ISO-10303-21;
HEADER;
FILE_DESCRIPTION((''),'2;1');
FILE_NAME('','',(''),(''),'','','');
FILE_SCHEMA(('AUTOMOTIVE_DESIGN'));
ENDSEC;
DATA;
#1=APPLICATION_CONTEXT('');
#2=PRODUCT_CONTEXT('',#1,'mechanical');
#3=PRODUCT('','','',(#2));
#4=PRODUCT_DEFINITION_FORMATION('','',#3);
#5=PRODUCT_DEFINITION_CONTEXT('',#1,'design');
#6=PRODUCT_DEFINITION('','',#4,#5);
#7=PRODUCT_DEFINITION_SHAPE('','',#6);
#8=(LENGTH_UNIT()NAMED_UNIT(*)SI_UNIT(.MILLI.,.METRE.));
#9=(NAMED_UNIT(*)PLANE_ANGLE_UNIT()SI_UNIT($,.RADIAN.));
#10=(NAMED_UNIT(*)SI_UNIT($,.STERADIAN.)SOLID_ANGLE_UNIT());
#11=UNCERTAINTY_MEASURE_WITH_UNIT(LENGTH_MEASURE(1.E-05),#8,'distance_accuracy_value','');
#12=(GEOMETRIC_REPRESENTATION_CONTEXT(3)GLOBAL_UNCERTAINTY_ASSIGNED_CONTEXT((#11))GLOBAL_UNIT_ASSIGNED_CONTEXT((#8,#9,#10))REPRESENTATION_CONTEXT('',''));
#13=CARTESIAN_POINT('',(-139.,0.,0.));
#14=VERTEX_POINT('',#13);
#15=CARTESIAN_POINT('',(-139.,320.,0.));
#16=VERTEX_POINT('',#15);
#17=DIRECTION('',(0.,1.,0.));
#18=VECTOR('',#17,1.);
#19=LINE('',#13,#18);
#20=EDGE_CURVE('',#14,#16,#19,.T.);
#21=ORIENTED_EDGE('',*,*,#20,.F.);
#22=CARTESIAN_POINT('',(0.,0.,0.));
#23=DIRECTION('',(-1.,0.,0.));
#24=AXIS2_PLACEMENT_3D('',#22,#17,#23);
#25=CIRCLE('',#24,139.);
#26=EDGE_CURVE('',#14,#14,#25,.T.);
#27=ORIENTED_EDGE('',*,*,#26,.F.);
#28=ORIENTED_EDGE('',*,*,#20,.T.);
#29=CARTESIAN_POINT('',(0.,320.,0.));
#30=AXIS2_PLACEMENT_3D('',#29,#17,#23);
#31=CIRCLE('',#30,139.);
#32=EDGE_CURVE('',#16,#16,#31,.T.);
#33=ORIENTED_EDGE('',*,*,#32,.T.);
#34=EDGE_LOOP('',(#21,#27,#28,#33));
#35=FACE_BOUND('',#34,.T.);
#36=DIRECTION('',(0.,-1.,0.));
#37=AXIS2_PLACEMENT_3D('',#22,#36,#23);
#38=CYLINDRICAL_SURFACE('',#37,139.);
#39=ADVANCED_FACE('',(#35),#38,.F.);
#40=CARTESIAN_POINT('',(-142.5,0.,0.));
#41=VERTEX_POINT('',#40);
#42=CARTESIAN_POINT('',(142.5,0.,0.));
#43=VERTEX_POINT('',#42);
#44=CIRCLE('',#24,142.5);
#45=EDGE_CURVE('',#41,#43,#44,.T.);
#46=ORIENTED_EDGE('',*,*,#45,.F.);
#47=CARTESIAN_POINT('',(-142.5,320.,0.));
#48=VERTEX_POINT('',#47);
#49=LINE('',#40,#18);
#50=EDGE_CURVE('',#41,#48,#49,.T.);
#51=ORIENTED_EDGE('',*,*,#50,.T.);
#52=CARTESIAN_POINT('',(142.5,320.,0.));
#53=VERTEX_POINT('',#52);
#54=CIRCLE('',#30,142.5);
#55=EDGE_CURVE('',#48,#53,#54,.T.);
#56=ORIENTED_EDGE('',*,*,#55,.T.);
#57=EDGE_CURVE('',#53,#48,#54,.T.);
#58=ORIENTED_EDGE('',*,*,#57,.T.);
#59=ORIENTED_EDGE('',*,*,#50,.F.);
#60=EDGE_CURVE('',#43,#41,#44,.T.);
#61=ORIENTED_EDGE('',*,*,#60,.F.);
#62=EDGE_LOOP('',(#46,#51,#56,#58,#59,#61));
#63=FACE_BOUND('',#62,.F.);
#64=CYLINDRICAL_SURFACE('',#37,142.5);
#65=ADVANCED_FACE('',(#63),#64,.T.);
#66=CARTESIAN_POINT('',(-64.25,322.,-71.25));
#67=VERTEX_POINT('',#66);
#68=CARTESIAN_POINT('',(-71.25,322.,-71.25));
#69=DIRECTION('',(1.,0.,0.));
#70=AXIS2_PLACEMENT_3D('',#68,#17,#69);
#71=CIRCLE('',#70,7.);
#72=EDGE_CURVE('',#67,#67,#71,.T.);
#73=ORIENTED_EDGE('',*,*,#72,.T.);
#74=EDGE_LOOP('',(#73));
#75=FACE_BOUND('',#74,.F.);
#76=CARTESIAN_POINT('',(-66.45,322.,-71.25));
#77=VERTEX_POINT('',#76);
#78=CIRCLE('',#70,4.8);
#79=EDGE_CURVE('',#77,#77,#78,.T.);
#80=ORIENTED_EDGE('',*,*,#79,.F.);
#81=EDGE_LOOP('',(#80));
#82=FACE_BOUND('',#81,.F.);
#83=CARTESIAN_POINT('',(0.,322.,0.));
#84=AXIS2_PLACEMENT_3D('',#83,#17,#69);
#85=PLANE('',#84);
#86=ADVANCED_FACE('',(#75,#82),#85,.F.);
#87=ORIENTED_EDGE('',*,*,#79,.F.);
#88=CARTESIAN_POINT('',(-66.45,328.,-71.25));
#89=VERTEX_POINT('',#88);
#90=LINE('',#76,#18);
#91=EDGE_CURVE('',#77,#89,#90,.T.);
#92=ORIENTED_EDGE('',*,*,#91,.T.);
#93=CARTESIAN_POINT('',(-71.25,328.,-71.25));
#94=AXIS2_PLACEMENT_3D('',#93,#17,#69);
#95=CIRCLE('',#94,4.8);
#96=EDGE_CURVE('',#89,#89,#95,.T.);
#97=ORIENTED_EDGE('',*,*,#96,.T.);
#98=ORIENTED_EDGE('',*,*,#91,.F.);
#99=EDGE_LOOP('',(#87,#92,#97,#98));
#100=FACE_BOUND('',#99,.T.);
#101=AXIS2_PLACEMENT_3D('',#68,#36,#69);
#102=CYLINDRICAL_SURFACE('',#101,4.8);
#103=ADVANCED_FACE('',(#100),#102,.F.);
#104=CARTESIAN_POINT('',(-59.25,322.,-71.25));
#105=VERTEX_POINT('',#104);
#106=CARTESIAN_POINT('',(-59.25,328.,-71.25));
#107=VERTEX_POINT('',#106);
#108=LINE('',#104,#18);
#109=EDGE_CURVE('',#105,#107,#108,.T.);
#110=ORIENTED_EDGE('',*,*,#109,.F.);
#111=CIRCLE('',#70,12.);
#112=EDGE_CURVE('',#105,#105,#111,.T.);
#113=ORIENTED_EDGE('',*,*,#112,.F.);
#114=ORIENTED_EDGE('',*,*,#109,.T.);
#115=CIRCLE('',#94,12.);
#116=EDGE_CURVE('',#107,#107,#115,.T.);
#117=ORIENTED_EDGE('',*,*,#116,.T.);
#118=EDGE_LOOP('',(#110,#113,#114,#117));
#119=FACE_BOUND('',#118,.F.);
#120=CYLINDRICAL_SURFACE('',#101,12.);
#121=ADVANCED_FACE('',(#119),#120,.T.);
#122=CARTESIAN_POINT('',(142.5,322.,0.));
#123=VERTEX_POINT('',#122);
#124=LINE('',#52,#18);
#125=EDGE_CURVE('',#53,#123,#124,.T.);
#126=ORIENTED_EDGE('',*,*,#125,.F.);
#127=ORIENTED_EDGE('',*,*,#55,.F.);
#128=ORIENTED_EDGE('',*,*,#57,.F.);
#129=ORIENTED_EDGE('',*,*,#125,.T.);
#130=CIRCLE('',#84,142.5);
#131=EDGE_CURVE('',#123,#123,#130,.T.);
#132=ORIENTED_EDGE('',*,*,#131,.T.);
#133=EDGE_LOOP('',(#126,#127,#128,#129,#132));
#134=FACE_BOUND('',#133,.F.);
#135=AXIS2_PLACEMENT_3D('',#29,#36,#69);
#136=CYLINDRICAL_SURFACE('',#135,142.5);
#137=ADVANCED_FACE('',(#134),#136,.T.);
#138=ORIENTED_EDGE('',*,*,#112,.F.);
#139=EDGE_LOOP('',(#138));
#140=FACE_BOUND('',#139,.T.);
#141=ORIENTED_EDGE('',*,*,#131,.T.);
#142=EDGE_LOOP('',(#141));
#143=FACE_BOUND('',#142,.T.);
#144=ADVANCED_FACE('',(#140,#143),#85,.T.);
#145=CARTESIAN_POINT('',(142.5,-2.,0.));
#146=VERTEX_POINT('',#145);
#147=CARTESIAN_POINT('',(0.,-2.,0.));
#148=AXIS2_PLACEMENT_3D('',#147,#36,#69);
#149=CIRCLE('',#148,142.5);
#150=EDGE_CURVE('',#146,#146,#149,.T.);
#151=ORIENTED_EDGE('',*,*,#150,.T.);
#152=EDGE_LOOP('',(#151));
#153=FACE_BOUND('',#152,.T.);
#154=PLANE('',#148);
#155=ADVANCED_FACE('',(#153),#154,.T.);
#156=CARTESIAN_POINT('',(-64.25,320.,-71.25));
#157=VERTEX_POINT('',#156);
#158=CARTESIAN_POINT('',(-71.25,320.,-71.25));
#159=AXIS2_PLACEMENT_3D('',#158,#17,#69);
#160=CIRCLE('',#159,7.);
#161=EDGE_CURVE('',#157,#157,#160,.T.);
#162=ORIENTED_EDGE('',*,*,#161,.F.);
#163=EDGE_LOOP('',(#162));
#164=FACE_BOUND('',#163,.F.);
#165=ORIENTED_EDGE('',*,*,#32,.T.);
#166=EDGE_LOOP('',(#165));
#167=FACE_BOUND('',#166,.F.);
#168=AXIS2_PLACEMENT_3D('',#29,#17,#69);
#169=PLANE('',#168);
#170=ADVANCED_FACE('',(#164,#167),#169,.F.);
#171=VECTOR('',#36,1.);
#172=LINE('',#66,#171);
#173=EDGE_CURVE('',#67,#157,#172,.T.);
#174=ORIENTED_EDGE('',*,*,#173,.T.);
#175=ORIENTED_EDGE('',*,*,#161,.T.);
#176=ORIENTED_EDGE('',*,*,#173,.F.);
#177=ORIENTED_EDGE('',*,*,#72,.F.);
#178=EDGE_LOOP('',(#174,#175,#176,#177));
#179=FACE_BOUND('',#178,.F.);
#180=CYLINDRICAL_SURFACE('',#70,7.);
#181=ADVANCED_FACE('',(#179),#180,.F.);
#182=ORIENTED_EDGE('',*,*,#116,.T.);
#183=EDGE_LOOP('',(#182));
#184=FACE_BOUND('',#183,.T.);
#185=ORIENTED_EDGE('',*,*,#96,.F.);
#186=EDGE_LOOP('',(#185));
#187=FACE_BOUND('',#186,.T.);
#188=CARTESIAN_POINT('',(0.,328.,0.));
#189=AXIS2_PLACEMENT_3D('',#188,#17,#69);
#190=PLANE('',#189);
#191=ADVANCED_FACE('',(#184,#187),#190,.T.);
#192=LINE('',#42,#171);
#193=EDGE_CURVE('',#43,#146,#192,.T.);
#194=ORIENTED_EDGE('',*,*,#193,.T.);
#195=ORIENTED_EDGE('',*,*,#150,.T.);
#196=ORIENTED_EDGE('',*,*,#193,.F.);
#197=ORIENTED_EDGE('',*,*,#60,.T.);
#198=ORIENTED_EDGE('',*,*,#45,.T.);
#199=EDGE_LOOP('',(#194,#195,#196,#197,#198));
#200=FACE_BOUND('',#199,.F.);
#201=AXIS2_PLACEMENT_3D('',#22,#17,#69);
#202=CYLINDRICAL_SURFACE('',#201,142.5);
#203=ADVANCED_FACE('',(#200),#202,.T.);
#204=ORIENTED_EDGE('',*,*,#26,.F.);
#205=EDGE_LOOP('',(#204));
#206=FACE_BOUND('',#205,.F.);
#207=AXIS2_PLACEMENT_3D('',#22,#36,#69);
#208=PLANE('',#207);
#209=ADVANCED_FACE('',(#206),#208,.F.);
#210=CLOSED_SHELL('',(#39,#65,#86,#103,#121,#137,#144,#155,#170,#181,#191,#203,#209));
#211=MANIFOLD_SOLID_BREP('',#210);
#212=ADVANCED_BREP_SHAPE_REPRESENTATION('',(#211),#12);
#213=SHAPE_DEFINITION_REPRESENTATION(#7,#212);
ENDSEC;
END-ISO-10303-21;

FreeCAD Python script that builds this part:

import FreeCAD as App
import Part
import Sketcher

V = App.Vector

doc = App.newDocument("Part")
body = doc.addObject("PartDesign::Body", "Body")

# Sketch on XZ plane
sketch1 = doc.addObject("Sketcher::SketchObject", "Sketch")
body.addObject(sketch1)
sketch1.AttachmentSupport = (doc.XZ_Plane, [""])
sketch1.MapMode = "FlatFace"
sketch1.addGeometry([
    Part.Circle(V(0, 0, 0), V(0, 0, 1), 142.5),
    Part.Circle(V(0, 0, 0), V(0, 0, 1), 139),
], False)
sketch1.addConstraint([
    Sketcher.Constraint("Coincident", 0, 3, -1, 1),
    Sketcher.Constraint("Coincident", 1, 3, -1, 1),
    Sketcher.Constraint("Diameter", 0, 285.0),
    Sketcher.Constraint("Diameter", 1, 278.0),
])
pad1 = doc.addObject("PartDesign::Pad", "Pad")
body.addObject(pad1)
pad1.Profile = sketch1
pad1.Length = 320
pad1.Reversed = True

# Sketch on XZ plane
sketch2 = doc.addObject("Sketcher::SketchObject", "Sketch001")
body.addObject(sketch2)
sketch2.AttachmentSupport = (doc.XZ_Plane, [""])
sketch2.MapMode = "FlatFace"
sketch2.addGeometry(Part.Circle(V(0, 0, 0), V(0, 0, 1), 142.5), False)
sketch2.addConstraint([
    Sketcher.Constraint("Coincident", 0, 3, -1, 1),
    Sketcher.Constraint("Diameter", 0, 285.0),
])
pad2 = doc.addObject("PartDesign::Pad", "Pad001")
body.addObject(pad2)
pad2.Profile = sketch2
pad2.Length = 2

# Sketch on XZ plane
sketch3 = doc.addObject("Sketcher::SketchObject", "Sketch002")
body.addObject(sketch3)
sketch3.AttachmentSupport = (doc.XZ_Plane, [""])
sketch3.MapMode = "FlatFace"
sketch3.AttachmentOffset = App.Placement(V(0, 0, -320), App.Rotation())
sketch3.addGeometry(Part.Circle(V(0, 0, 0), V(0, 0, 1), 142.5), False)
sketch3.addConstraint([
    Sketcher.Constraint("Coincident", 0, 3, -1, 1),
    Sketcher.Constraint("Diameter", 0, 285.0),
])
pad3 = doc.addObject("PartDesign::Pad", "Pad002")
body.addObject(pad3)
pad3.Profile = sketch3
pad3.Length = 2
pad3.Reversed = True

# Sketch on XZ plane
sketch4 = doc.addObject("Sketcher::SketchObject", "Sketch003")
body.addObject(sketch4)
sketch4.AttachmentSupport = (doc.XZ_Plane, [""])
sketch4.MapMode = "FlatFace"
sketch4.AttachmentOffset = App.Placement(V(0, 0, -322), App.Rotation())
sketch4.addGeometry(Part.Circle(V(-71.25, -71.25, 0), V(0, 0, 1), 7), False)
sketch4.addConstraint([
    Sketcher.Constraint("Diameter", 0, 14.0),
    Sketcher.Constraint("DistanceX", 0, 3, -1, 1, 71.25),
    Sketcher.Constraint("DistanceY", 0, 3, -1, 1, 71.25),
])
pocket1 = doc.addObject("PartDesign::Pocket", "Pocket")
body.addObject(pocket1)
pocket1.Profile = sketch4
pocket1.Length = 10
pocket1.Reversed = True

# Sketch on XZ plane
sketch5 = doc.addObject("Sketcher::SketchObject", "Sketch004")
body.addObject(sketch5)
sketch5.AttachmentSupport = (doc.XZ_Plane, [""])
sketch5.MapMode = "FlatFace"
sketch5.AttachmentOffset = App.Placement(V(0, 0, -322), App.Rotation())
sketch5.addGeometry([
    Part.Circle(V(-71.25, -71.25, 0), V(0, 0, 1), 12),
    Part.Circle(V(-71.25, -71.25, 0), V(0, 0, 1), 4.8),
], False)
sketch5.addConstraint([
    Sketcher.Constraint("Coincident", 1, 3, 0, 3),
    Sketcher.Constraint("Diameter", 0, 24.0),
    Sketcher.Constraint("Diameter", 1, 9.6),
    Sketcher.Constraint("DistanceX", 0, 3, -1, 1, 71.25),
    Sketcher.Constraint("DistanceY", 0, 3, -1, 1, 71.25),
])
pad4 = doc.addObject("PartDesign::Pad", "Pad003")
body.addObject(pad4)
pad4.Profile = sketch5
pad4.Length = 6
pad4.Reversed = True

doc.recompute()
